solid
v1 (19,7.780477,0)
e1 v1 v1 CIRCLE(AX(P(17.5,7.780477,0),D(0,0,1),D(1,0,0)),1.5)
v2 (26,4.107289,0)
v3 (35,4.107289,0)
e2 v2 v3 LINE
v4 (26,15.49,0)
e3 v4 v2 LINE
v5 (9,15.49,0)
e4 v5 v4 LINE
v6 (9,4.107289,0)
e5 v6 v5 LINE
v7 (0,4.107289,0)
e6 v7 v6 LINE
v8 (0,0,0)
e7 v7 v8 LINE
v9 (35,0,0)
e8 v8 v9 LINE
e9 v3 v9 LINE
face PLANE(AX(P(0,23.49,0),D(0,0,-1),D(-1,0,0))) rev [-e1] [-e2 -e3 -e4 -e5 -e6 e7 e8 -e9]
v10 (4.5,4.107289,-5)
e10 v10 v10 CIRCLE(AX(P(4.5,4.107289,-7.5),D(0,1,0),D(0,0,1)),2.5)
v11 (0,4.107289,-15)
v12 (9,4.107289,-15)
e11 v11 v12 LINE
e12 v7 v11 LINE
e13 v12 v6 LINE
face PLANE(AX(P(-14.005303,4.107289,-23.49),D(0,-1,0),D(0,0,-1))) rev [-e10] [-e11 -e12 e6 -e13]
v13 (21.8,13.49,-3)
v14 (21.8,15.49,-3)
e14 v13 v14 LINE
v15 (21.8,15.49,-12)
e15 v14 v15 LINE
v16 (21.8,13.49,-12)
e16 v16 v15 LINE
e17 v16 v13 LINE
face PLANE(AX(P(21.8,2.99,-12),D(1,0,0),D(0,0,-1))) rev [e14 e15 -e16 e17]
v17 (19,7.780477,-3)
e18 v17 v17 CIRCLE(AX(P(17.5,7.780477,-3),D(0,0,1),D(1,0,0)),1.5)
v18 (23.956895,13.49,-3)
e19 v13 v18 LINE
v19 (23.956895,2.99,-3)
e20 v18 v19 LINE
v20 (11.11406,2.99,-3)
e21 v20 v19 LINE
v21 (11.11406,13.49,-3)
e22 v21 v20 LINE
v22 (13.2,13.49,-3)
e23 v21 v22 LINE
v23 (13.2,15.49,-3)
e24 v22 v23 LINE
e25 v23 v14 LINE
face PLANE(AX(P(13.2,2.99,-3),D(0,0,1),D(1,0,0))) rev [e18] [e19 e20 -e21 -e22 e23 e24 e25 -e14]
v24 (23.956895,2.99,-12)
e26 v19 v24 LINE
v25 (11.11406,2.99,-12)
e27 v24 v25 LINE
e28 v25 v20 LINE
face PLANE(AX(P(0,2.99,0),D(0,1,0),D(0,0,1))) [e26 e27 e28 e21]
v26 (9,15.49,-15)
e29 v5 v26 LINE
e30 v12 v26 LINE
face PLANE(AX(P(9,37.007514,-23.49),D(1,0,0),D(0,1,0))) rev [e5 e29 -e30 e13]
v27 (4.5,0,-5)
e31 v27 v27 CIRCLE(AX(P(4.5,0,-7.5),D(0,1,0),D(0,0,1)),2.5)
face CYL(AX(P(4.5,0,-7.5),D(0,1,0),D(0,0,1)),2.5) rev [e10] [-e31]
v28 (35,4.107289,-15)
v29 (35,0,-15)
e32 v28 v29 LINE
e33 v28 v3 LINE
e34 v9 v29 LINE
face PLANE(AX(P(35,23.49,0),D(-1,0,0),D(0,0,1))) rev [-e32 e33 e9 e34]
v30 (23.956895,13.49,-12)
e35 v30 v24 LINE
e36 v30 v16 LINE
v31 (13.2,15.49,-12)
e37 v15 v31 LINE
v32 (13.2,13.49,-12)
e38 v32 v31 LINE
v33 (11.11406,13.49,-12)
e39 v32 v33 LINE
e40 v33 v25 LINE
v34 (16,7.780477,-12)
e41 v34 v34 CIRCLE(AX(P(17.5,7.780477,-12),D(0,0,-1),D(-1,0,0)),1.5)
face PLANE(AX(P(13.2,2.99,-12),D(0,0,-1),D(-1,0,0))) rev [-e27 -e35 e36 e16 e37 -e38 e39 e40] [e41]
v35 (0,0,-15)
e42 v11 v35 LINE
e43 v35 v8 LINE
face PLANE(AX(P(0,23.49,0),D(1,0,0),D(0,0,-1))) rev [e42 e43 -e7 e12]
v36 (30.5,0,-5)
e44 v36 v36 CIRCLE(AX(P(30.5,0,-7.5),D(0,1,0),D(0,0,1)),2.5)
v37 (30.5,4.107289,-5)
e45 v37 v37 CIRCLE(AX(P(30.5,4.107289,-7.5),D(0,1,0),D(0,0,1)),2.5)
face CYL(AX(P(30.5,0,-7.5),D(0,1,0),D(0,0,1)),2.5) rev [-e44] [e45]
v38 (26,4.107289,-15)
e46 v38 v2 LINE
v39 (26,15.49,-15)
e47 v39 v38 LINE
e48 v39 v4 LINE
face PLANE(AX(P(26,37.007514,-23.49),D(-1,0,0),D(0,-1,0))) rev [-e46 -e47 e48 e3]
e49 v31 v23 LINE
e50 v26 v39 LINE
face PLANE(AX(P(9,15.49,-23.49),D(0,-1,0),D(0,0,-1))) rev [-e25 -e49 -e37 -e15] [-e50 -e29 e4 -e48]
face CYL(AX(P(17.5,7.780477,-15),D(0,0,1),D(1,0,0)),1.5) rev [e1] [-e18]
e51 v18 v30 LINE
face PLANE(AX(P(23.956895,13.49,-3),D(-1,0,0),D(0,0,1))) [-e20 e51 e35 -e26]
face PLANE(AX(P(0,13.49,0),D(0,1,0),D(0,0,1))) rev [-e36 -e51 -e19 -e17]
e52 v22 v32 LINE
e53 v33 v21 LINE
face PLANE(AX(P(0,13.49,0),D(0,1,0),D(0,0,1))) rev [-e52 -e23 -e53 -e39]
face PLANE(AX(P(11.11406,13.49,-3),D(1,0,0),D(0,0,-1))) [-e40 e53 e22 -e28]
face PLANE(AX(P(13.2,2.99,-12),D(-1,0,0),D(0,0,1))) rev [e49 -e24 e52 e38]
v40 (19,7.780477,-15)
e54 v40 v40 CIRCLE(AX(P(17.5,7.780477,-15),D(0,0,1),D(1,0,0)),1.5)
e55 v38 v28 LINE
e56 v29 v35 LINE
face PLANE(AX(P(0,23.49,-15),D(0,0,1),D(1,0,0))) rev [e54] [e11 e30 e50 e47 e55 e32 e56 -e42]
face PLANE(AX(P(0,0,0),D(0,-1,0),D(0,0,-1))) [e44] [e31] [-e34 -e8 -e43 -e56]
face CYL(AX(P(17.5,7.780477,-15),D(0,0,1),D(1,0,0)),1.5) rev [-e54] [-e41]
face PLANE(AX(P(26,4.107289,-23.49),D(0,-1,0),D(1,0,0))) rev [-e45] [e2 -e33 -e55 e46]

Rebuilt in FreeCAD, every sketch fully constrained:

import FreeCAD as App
import Part
import Sketcher
from FreeCAD import Vector

doc = App.newDocument("Part")
body = doc.addObject("PartDesign::Body", "Body")

sketch1 = body.newObject("Sketcher::SketchObject", "Sketch")
sketch1.AttachmentSupport = (doc.getObject("XZ_Plane"), [""])
sketch1.MapMode = "FlatFace"
sketch1.addGeometry([
    Part.LineSegment(Vector(0, -15, 0), Vector(0, 0, 0)),
    Part.LineSegment(Vector(0, 0, 0), Vector(35, 0, 0)),
    Part.LineSegment(Vector(35, 0, 0), Vector(35, -15, 0)),
    Part.LineSegment(Vector(35, -15, 0), Vector(0, -15, 0)),
], False)
sketch1.addConstraint([
    Sketcher.Constraint("Coincident", 0, 2, 1, 1),
    Sketcher.Constraint("Coincident", 1, 2, 2, 1),
    Sketcher.Constraint("Coincident", 2, 2, 3, 1),
    Sketcher.Constraint("Coincident", 3, 2, 0, 1),
    Sketcher.Constraint("Vertical", 0),
    Sketcher.Constraint("Horizontal", 1),
    Sketcher.Constraint("Vertical", 2),
    Sketcher.Constraint("Horizontal", 3),
    Sketcher.Constraint("Coincident", 0, 2, -1, 1),
    Sketcher.Constraint("DistanceX", 1, 1, 1, 2, 35.0),
    Sketcher.Constraint("DistanceY", 0, 1, 0, 2, 15.0),
])
pad1 = body.newObject("PartDesign::Pad", "Pad")
pad1.Profile = sketch1
pad1.Length = 23.49
pad1.Reversed = True

sketch2 = body.newObject("Sketcher::SketchObject", "Sketch001")
sketch2.AttachmentSupport = (doc.getObject("XY_Plane"), [""])
sketch2.MapMode = "FlatFace"
sketch2.addGeometry([
    Part.LineSegment(Vector(26, 37.007514, 0), Vector(26, 4.107289, 0)),
    Part.LineSegment(Vector(26, 4.107289, 0), Vector(48.560012, 4.107289, 0)),
    Part.LineSegment(Vector(48.560012, 4.107289, 0), Vector(48.560012, 37.007514, 0)),
    Part.LineSegment(Vector(48.560012, 37.007514, 0), Vector(26, 37.007514, 0)),
    Part.LineSegment(Vector(-14.005303, 37.007514, 0), Vector(-14.005303, 4.107289, 0)),
    Part.LineSegment(Vector(-14.005303, 4.107289, 0), Vector(9, 4.107289, 0)),
    Part.LineSegment(Vector(9, 4.107289, 0), Vector(9, 37.007514, 0)),
    Part.LineSegment(Vector(9, 37.007514, 0), Vector(-14.005303, 37.007514, 0)),
], False)
sketch2.addConstraint([
    Sketcher.Constraint("Coincident", 0, 2, 1, 1),
    Sketcher.Constraint("Coincident", 1, 2, 2, 1),
    Sketcher.Constraint("Coincident", 2, 2, 3, 1),
    Sketcher.Constraint("Coincident", 3, 2, 0, 1),
    Sketcher.Constraint("Coincident", 4, 2, 5, 1),
    Sketcher.Constraint("Coincident", 5, 2, 6, 1),
    Sketcher.Constraint("Coincident", 6, 2, 7, 1),
    Sketcher.Constraint("Coincident", 7, 2, 4, 1),
    Sketcher.Constraint("Vertical", 0),
    Sketcher.Constraint("Horizontal", 1),
    Sketcher.Constraint("Vertical", 2),
    Sketcher.Constraint("Horizontal", 3),
    Sketcher.Constraint("Vertical", 4),
    Sketcher.Constraint("Horizontal", 5),
    Sketcher.Constraint("Vertical", 6),
    Sketcher.Constraint("Horizontal", 7),
    Sketcher.Constraint("Horizontal", 1, 2, 4, 2),
    Sketcher.Constraint("Horizontal", 3, 2, 6, 2),
    Sketcher.Constraint("DistanceX", -1, 1, 0, 2, 26.0),
    Sketcher.Constraint("DistanceX", -1, 1, 5, 2, 9.0),
    Sketcher.Constraint("DistanceX", 1, 1, 1, 2, 22.560012),
    Sketcher.Constraint("DistanceX", 5, 1, 5, 2, 23.005303),
    Sketcher.Constraint("DistanceY", 0, 2, 0, 1, 32.900224),
    Sketcher.Constraint("DistanceY", -1, 1, 0, 2, 4.107289),
])
pocket1 = body.newObject("PartDesign::Pocket", "Pocket")
pocket1.Profile = sketch2
pocket1.Length = 23.49

sketch3 = body.newObject("Sketcher::SketchObject", "Sketch002")
sketch3.AttachmentSupport = (doc.getObject("XY_Plane"), [""])
sketch3.MapMode = "FlatFace"
sketch3.addGeometry([
    Part.LineSegment(Vector(9, 31.221554, 0), Vector(9, 15.49, 0)),
    Part.LineSegment(Vector(9, 15.49, 0), Vector(26, 15.49, 0)),
    Part.LineSegment(Vector(26, 15.49, 0), Vector(26, 31.221554, 0)),
    Part.LineSegment(Vector(26, 31.221554, 0), Vector(9, 31.221554, 0)),
], False)
sketch3.addConstraint([
    Sketcher.Constraint("Coincident", 0, 2, 1, 1),
    Sketcher.Constraint("Coincident", 1, 2, 2, 1),
    Sketcher.Constraint("Coincident", 2, 2, 3, 1),
    Sketcher.Constraint("Coincident", 3, 2, 0, 1),
    Sketcher.Constraint("Vertical", 0),
    Sketcher.Constraint("Horizontal", 1),
    Sketcher.Constraint("Vertical", 2),
    Sketcher.Constraint("Horizontal", 3),
    Sketcher.Constraint("DistanceX", 1, 1, 1, 2, 17.0),
    Sketcher.Constraint("DistanceX", -1, 1, 0, 2, 9.0),
    Sketcher.Constraint("DistanceY", -1, 1, 0, 2, 15.49),
    Sketcher.Constraint("DistanceY", 0, 2, 0, 1, 15.731554),
])
pocket2 = body.newObject("PartDesign::Pocket", "Pocket001")
pocket2.Profile = sketch3
pocket2.Length = 23.49

sketch4 = body.newObject("Sketcher::SketchObject", "Sketch003")
sketch4.AttachmentSupport = (doc.getObject("XZ_Plane"), [""])
sketch4.MapMode = "FlatFace"
sketch4.AttachmentOffset = App.Placement(Vector(0, 0, -15.49), App.Rotation())
sketch4.addGeometry([
    Part.LineSegment(Vector(13.2, -12, 0), Vector(13.2, -3, 0)),
    Part.LineSegment(Vector(13.2, -3, 0), Vector(21.8, -3, 0)),
    Part.LineSegment(Vector(21.8, -3, 0), Vector(21.8, -12, 0)),
    Part.LineSegment(Vector(21.8, -12, 0), Vector(13.2, -12, 0)),
], False)
sketch4.addConstraint([
    Sketcher.Constraint("Coincident", 0, 2, 1, 1),
    Sketcher.Constraint("Coincident", 1, 2, 2, 1),
    Sketcher.Constraint("Coincident", 2, 2, 3, 1),
    Sketcher.Constraint("Coincident", 3, 2, 0, 1),
    Sketcher.Constraint("Vertical", 0),
    Sketcher.Constraint("Horizontal", 1),
    Sketcher.Constraint("Vertical", 2),
    Sketcher.Constraint("Horizontal", 3),
    Sketcher.Constraint("DistanceY", 0, 1, 0, 2, 9.0),
    Sketcher.Constraint("DistanceX", 1, 1, 1, 2, 8.6),
    Sketcher.Constraint("DistanceY", 0, 2, -1, 1, 3.0),
    Sketcher.Constraint("DistanceX", -1, 1, 0, 2, 13.2),
])
pocket3 = body.newObject("PartDesign::Pocket", "Pocket002")
pocket3.Profile = sketch4
pocket3.Length = 12.5
pocket3.Reversed = True

sketch5 = body.newObject("Sketcher::SketchObject", "Sketch004")
sketch5.AttachmentSupport = (doc.getObject("XZ_Plane"), [""])
sketch5.MapMode = "FlatFace"
sketch5.AttachmentOffset = App.Placement(Vector(0, 0, -2.99), App.Rotation())
sketch5.addGeometry([
    Part.LineSegment(Vector(11.11406, -12, 0), Vector(11.11406, -3, 0)),
    Part.LineSegment(Vector(11.11406, -3, 0), Vector(23.956895, -3, 0)),
    Part.LineSegment(Vector(23.956895, -3, 0), Vector(23.956895, -12, 0)),
    Part.LineSegment(Vector(23.956895, -12, 0), Vector(11.11406, -12, 0)),
], False)
sketch5.addConstraint([
    Sketcher.Constraint("Coincident", 0, 2, 1, 1),
    Sketcher.Constraint("Coincident", 1, 2, 2, 1),
    Sketcher.Constraint("Coincident", 2, 2, 3, 1),
    Sketcher.Constraint("Coincident", 3, 2, 0, 1),
    Sketcher.Constraint("Vertical", 0),
    Sketcher.Constraint("Horizontal", 1),
    Sketcher.Constraint("Vertical", 2),
    Sketcher.Constraint("Horizontal", 3),
    Sketcher.Constraint("DistanceY", 0, 1, 0, 2, 9.0),
    Sketcher.Constraint("DistanceY", 0, 2, -1, 1, 3.0),
    Sketcher.Constraint("DistanceX", 1, 1, 1, 2, 12.842835),
    Sketcher.Constraint("DistanceX", -1, 1, 0, 2, 11.11406),
])
pocket4 = body.newObject("PartDesign::Pocket", "Pocket003")
pocket4.Profile = sketch5
pocket4.Length = 10.5

sketch6 = body.newObject("Sketcher::SketchObject", "Sketch005")
sketch6.AttachmentSupport = (doc.getObject("XZ_Plane"), [""])
sketch6.MapMode = "FlatFace"
sketch6.AttachmentOffset = App.Placement(Vector(0, 0, -4.107289), App.Rotation())
sketch6.addGeometry([
    Part.Circle(Vector(4.5, -7.5, 0), Vector(0, 0, 1), 2.5),
    Part.Circle(Vector(30.5, -7.5, 0), Vector(0, 0, 1), 2.5),
], False)
sketch6.addConstraint([
    Sketcher.Constraint("Equal", 0, 1),
    Sketcher.Constraint("Horizontal", 0, 3, 1, 3),
    Sketcher.Constraint("Diameter", 0, 5.0),
    Sketcher.Constraint("DistanceX", 0, 3, 1, 3, 26.0),
    Sketcher.Constraint("DistanceX", -1, 1, 0, 3, 4.5),
    Sketcher.Constraint("DistanceY", 0, 3, -1, 1, 7.5),
])
pocket5 = body.newObject("PartDesign::Pocket", "Pocket004")
pocket5.Profile = sketch6
pocket5.Type = "ThroughAll"
pocket5.Reversed = True

sketch7 = body.newObject("Sketcher::SketchObject", "Sketch006")
sketch7.AttachmentSupport = (doc.getObject("XY_Plane"), [""])
sketch7.MapMode = "FlatFace"
sketch7.addGeometry(Part.Circle(Vector(17.5, 7.780477, 0), Vector(0, 0, 1), 1.5), False)
sketch7.addConstraint([
    Sketcher.Constraint("Diameter", 0, 3.0),
    Sketcher.Constraint("DistanceX", -1, 1, 0, 3, 17.5),
    Sketcher.Constraint("DistanceY", -1, 1, 0, 3, 7.780477),
])
pocket6 = body.newObject("PartDesign::Pocket", "Pocket005")
pocket6.Profile = sketch7
pocket6.Type = "ThroughAll"

doc.recompute()
